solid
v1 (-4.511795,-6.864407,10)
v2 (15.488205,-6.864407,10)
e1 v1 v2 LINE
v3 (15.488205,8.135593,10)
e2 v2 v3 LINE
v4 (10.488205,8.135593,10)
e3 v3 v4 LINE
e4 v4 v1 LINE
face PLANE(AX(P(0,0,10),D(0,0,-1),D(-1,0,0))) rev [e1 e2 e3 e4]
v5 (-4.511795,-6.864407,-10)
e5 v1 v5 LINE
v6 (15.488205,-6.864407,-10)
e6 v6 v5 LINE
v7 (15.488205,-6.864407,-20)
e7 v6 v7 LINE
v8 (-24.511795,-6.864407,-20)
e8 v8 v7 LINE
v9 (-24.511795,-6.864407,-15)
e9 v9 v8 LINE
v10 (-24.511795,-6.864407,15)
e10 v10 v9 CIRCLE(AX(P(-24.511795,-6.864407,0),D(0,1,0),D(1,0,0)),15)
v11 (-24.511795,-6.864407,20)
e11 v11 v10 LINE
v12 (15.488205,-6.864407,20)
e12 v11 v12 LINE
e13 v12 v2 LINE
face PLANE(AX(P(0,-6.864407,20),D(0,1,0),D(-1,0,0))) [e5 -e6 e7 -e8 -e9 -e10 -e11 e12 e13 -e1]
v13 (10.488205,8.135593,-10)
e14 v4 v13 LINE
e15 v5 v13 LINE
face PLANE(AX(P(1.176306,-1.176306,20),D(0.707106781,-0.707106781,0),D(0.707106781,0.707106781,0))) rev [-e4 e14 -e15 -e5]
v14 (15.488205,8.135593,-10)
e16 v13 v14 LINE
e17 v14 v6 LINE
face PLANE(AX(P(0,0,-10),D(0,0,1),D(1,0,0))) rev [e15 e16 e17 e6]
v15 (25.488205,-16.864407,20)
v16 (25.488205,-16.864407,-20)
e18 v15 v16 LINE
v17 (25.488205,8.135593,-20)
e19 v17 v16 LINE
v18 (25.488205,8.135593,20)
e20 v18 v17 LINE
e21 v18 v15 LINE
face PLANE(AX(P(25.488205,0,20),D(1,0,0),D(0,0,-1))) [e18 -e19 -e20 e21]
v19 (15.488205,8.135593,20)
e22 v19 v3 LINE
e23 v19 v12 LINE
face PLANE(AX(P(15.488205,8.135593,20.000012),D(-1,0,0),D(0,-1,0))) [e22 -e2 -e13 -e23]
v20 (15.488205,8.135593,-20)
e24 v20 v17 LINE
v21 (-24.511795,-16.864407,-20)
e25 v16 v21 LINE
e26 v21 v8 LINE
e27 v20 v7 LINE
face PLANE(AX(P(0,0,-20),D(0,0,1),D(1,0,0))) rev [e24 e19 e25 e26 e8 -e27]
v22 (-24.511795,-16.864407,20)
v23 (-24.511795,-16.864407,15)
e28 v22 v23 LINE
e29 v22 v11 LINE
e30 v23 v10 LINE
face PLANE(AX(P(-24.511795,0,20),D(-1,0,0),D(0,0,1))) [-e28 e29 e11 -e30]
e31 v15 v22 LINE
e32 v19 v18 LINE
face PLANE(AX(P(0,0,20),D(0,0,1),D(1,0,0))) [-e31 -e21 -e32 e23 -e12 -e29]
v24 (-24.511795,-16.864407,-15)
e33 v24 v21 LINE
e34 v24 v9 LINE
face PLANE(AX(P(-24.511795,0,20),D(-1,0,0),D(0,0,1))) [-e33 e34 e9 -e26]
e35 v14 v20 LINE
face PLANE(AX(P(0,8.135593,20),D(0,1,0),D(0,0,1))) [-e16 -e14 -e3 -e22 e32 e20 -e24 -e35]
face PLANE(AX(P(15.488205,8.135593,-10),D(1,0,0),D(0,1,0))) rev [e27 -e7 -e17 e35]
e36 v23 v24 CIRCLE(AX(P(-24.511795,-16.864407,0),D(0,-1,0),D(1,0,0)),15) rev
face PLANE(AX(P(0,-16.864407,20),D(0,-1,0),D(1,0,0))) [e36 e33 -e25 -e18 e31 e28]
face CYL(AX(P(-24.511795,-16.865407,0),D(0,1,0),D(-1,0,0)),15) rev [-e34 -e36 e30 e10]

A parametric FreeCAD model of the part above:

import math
import FreeCAD as App
import Part
import Sketcher

V = App.Vector
Q = App.Units.Quantity


def add_polygon(sketch, points):
    """Adds a closed chain of lines whose ends are joined by coincident constraints."""
    first, n = sketch.GeometryCount, len(points)
    for a, b in zip(points, points[1:] + points[:1]):
        sketch.addGeometry(Part.LineSegment(App.Vector(*a, 0), App.Vector(*b, 0)), False)
    for i in range(n):
        sketch.addConstraint(Sketcher.Constraint("Coincident", first + i, 2, first + (i + 1) % n, 1))

doc = App.newDocument("Part")
body = doc.addObject("PartDesign::Body", "Body")

sketch1 = body.newObject("Sketcher::SketchObject", "Sketch")
sketch1.AttachmentSupport = (doc.getObject("XY_Plane"), [""])
sketch1.MapMode = "FlatFace"
add_polygon(sketch1, [(-4.511795, -6.864407), (-24.511795, -6.864407), (-24.511795, -16.864407), (25.488205, -16.864407), (25.488205, 8.135593), (10.488205, 8.135593)])
sketch1.addConstraint([
    Sketcher.Constraint("Horizontal", 0),
    Sketcher.Constraint("Vertical", 1),
    Sketcher.Constraint("Horizontal", 2),
    Sketcher.Constraint("Vertical", 3),
    Sketcher.Constraint("Horizontal", 4),
    Sketcher.Constraint("DistanceX", 0, 2, 0, 1, Q("20 mm")),
    Sketcher.Constraint("DistanceX", 2, 1, 2, 2, Q("50 mm")),
    Sketcher.Constraint("DistanceX", 4, 2, 4, 1, Q("15 mm")),
    Sketcher.Constraint("DistanceY", 1, 2, 1, 1, Q("10 mm")),
    Sketcher.Constraint("DistanceY", 3, 1, 3, 2, Q("25 mm")),
    Sketcher.Constraint("DistanceX", 0, 2, -1, 1, Q("24.511795 mm")),
    Sketcher.Constraint("DistanceY", 0, 2, -1, 1, Q("6.864407 mm")),
])
pad1 = body.newObject("PartDesign::Pad", "Pad")
pad1.Profile = sketch1
pad1.Length = 40
pad1.Midplane = True

sketch2 = body.newObject("Sketcher::SketchObject", "Sketch001")
sketch2.AttachmentSupport = (doc.getObject("XY_Plane"), [""])
sketch2.MapMode = "FlatFace"
sketch2.AttachmentOffset = App.Placement(V(0, 0, 20), App.Rotation())
add_polygon(sketch2, [(-4.511795, -6.864407), (15.488205, -6.864407), (15.488205, 8.135593), (10.488205, 8.135593)])
sketch2.addConstraint([
    Sketcher.Constraint("Horizontal", 0),
    Sketcher.Constraint("Vertical", 1),
    Sketcher.Constraint("Horizontal", 2),
    Sketcher.Constraint("DistanceX", 0, 1, 0, 2, Q("20 mm")),
    Sketcher.Constraint("DistanceX", 2, 2, 2, 1, Q("5 mm")),
    Sketcher.Constraint("DistanceY", 1, 1, 1, 2, Q("15 mm")),
    Sketcher.Constraint("DistanceX", -1, 1, 0, 2, Q("15.488205 mm")),
    Sketcher.Constraint("DistanceY", 0, 2, -1, 1, Q("6.864407 mm")),
])
pocket1 = body.newObject("PartDesign::Pocket", "Pocket")
pocket1.Profile = sketch2
pocket1.Type = "TwoLengths"
pocket1.Length = 1
pocket1.Length2 = 10
pocket1.Reversed = True

sketch3 = body.newObject("Sketcher::SketchObject", "Sketch002")
sketch3.AttachmentSupport = (doc.getObject("XY_Plane"), [""])
sketch3.MapMode = "FlatFace"
sketch3.AttachmentOffset = App.Placement(V(0, 0, -20), App.Rotation())
add_polygon(sketch3, [(15.488205, -6.864407), (-4.511795, -6.864407), (10.488205, 8.135593), (15.488205, 8.135593)])
sketch3.addConstraint([
    Sketcher.Constraint("Horizontal", 0),
    Sketcher.Constraint("Horizontal", 2),
    Sketcher.Constraint("Vertical", 3),
    Sketcher.Constraint("DistanceX", 0, 2, 0, 1, Q("20 mm")),
    Sketcher.Constraint("DistanceX", 2, 1, 2, 2, Q("5 mm")),
    Sketcher.Constraint("DistanceY", 3, 2, 3, 1, Q("15 mm")),
    Sketcher.Constraint("DistanceX", 0, 2, -1, 1, Q("4.511795 mm")),
    Sketcher.Constraint("DistanceY", 0, 2, -1, 1, Q("6.864407 mm")),
])
pocket2 = body.newObject("PartDesign::Pocket", "Pocket001")
pocket2.Profile = sketch3
pocket2.Length = 10
pocket2.Reversed = True

sketch4 = body.newObject("Sketcher::SketchObject", "Sketch003")
sketch4.AttachmentSupport = (doc.getObject("XZ_Plane"), [""])
sketch4.MapMode = "FlatFace"
sketch4.AttachmentOffset = App.Placement(V(0, 0, 6.864407), App.Rotation())
sketch4.addGeometry([
    Part.LineSegment(V(-24.511795, -15, 0), V(-24.511795, 15, 0)),
    Part.ArcOfCircle(Part.Circle(V(-24.511795, 0, 0), V(0, 0, 1), 15), math.radians(-90), math.radians(90)),
], False)
sketch4.addConstraint([
    Sketcher.Constraint("Coincident", 0, 1, 1, 1),
    Sketcher.Constraint("Coincident", 1, 2, 0, 2),
    Sketcher.Constraint("Vertical", 0),
    Sketcher.Constraint("PointOnObject", 1, 3, -1),
    Sketcher.Constraint("Vertical", 1, 3, 0, 1),
    Sketcher.Constraint("Radius", 1, Q("15 mm")),
    Sketcher.Constraint("DistanceX", 1, 3, -1, 1, Q("24.511795 mm")),
])
pocket3 = body.newObject("PartDesign::Pocket", "Pocket002")
pocket3.Profile = sketch4
pocket3.Type = "UpToFirst"
pocket3.Reversed = True

doc.recompute()
